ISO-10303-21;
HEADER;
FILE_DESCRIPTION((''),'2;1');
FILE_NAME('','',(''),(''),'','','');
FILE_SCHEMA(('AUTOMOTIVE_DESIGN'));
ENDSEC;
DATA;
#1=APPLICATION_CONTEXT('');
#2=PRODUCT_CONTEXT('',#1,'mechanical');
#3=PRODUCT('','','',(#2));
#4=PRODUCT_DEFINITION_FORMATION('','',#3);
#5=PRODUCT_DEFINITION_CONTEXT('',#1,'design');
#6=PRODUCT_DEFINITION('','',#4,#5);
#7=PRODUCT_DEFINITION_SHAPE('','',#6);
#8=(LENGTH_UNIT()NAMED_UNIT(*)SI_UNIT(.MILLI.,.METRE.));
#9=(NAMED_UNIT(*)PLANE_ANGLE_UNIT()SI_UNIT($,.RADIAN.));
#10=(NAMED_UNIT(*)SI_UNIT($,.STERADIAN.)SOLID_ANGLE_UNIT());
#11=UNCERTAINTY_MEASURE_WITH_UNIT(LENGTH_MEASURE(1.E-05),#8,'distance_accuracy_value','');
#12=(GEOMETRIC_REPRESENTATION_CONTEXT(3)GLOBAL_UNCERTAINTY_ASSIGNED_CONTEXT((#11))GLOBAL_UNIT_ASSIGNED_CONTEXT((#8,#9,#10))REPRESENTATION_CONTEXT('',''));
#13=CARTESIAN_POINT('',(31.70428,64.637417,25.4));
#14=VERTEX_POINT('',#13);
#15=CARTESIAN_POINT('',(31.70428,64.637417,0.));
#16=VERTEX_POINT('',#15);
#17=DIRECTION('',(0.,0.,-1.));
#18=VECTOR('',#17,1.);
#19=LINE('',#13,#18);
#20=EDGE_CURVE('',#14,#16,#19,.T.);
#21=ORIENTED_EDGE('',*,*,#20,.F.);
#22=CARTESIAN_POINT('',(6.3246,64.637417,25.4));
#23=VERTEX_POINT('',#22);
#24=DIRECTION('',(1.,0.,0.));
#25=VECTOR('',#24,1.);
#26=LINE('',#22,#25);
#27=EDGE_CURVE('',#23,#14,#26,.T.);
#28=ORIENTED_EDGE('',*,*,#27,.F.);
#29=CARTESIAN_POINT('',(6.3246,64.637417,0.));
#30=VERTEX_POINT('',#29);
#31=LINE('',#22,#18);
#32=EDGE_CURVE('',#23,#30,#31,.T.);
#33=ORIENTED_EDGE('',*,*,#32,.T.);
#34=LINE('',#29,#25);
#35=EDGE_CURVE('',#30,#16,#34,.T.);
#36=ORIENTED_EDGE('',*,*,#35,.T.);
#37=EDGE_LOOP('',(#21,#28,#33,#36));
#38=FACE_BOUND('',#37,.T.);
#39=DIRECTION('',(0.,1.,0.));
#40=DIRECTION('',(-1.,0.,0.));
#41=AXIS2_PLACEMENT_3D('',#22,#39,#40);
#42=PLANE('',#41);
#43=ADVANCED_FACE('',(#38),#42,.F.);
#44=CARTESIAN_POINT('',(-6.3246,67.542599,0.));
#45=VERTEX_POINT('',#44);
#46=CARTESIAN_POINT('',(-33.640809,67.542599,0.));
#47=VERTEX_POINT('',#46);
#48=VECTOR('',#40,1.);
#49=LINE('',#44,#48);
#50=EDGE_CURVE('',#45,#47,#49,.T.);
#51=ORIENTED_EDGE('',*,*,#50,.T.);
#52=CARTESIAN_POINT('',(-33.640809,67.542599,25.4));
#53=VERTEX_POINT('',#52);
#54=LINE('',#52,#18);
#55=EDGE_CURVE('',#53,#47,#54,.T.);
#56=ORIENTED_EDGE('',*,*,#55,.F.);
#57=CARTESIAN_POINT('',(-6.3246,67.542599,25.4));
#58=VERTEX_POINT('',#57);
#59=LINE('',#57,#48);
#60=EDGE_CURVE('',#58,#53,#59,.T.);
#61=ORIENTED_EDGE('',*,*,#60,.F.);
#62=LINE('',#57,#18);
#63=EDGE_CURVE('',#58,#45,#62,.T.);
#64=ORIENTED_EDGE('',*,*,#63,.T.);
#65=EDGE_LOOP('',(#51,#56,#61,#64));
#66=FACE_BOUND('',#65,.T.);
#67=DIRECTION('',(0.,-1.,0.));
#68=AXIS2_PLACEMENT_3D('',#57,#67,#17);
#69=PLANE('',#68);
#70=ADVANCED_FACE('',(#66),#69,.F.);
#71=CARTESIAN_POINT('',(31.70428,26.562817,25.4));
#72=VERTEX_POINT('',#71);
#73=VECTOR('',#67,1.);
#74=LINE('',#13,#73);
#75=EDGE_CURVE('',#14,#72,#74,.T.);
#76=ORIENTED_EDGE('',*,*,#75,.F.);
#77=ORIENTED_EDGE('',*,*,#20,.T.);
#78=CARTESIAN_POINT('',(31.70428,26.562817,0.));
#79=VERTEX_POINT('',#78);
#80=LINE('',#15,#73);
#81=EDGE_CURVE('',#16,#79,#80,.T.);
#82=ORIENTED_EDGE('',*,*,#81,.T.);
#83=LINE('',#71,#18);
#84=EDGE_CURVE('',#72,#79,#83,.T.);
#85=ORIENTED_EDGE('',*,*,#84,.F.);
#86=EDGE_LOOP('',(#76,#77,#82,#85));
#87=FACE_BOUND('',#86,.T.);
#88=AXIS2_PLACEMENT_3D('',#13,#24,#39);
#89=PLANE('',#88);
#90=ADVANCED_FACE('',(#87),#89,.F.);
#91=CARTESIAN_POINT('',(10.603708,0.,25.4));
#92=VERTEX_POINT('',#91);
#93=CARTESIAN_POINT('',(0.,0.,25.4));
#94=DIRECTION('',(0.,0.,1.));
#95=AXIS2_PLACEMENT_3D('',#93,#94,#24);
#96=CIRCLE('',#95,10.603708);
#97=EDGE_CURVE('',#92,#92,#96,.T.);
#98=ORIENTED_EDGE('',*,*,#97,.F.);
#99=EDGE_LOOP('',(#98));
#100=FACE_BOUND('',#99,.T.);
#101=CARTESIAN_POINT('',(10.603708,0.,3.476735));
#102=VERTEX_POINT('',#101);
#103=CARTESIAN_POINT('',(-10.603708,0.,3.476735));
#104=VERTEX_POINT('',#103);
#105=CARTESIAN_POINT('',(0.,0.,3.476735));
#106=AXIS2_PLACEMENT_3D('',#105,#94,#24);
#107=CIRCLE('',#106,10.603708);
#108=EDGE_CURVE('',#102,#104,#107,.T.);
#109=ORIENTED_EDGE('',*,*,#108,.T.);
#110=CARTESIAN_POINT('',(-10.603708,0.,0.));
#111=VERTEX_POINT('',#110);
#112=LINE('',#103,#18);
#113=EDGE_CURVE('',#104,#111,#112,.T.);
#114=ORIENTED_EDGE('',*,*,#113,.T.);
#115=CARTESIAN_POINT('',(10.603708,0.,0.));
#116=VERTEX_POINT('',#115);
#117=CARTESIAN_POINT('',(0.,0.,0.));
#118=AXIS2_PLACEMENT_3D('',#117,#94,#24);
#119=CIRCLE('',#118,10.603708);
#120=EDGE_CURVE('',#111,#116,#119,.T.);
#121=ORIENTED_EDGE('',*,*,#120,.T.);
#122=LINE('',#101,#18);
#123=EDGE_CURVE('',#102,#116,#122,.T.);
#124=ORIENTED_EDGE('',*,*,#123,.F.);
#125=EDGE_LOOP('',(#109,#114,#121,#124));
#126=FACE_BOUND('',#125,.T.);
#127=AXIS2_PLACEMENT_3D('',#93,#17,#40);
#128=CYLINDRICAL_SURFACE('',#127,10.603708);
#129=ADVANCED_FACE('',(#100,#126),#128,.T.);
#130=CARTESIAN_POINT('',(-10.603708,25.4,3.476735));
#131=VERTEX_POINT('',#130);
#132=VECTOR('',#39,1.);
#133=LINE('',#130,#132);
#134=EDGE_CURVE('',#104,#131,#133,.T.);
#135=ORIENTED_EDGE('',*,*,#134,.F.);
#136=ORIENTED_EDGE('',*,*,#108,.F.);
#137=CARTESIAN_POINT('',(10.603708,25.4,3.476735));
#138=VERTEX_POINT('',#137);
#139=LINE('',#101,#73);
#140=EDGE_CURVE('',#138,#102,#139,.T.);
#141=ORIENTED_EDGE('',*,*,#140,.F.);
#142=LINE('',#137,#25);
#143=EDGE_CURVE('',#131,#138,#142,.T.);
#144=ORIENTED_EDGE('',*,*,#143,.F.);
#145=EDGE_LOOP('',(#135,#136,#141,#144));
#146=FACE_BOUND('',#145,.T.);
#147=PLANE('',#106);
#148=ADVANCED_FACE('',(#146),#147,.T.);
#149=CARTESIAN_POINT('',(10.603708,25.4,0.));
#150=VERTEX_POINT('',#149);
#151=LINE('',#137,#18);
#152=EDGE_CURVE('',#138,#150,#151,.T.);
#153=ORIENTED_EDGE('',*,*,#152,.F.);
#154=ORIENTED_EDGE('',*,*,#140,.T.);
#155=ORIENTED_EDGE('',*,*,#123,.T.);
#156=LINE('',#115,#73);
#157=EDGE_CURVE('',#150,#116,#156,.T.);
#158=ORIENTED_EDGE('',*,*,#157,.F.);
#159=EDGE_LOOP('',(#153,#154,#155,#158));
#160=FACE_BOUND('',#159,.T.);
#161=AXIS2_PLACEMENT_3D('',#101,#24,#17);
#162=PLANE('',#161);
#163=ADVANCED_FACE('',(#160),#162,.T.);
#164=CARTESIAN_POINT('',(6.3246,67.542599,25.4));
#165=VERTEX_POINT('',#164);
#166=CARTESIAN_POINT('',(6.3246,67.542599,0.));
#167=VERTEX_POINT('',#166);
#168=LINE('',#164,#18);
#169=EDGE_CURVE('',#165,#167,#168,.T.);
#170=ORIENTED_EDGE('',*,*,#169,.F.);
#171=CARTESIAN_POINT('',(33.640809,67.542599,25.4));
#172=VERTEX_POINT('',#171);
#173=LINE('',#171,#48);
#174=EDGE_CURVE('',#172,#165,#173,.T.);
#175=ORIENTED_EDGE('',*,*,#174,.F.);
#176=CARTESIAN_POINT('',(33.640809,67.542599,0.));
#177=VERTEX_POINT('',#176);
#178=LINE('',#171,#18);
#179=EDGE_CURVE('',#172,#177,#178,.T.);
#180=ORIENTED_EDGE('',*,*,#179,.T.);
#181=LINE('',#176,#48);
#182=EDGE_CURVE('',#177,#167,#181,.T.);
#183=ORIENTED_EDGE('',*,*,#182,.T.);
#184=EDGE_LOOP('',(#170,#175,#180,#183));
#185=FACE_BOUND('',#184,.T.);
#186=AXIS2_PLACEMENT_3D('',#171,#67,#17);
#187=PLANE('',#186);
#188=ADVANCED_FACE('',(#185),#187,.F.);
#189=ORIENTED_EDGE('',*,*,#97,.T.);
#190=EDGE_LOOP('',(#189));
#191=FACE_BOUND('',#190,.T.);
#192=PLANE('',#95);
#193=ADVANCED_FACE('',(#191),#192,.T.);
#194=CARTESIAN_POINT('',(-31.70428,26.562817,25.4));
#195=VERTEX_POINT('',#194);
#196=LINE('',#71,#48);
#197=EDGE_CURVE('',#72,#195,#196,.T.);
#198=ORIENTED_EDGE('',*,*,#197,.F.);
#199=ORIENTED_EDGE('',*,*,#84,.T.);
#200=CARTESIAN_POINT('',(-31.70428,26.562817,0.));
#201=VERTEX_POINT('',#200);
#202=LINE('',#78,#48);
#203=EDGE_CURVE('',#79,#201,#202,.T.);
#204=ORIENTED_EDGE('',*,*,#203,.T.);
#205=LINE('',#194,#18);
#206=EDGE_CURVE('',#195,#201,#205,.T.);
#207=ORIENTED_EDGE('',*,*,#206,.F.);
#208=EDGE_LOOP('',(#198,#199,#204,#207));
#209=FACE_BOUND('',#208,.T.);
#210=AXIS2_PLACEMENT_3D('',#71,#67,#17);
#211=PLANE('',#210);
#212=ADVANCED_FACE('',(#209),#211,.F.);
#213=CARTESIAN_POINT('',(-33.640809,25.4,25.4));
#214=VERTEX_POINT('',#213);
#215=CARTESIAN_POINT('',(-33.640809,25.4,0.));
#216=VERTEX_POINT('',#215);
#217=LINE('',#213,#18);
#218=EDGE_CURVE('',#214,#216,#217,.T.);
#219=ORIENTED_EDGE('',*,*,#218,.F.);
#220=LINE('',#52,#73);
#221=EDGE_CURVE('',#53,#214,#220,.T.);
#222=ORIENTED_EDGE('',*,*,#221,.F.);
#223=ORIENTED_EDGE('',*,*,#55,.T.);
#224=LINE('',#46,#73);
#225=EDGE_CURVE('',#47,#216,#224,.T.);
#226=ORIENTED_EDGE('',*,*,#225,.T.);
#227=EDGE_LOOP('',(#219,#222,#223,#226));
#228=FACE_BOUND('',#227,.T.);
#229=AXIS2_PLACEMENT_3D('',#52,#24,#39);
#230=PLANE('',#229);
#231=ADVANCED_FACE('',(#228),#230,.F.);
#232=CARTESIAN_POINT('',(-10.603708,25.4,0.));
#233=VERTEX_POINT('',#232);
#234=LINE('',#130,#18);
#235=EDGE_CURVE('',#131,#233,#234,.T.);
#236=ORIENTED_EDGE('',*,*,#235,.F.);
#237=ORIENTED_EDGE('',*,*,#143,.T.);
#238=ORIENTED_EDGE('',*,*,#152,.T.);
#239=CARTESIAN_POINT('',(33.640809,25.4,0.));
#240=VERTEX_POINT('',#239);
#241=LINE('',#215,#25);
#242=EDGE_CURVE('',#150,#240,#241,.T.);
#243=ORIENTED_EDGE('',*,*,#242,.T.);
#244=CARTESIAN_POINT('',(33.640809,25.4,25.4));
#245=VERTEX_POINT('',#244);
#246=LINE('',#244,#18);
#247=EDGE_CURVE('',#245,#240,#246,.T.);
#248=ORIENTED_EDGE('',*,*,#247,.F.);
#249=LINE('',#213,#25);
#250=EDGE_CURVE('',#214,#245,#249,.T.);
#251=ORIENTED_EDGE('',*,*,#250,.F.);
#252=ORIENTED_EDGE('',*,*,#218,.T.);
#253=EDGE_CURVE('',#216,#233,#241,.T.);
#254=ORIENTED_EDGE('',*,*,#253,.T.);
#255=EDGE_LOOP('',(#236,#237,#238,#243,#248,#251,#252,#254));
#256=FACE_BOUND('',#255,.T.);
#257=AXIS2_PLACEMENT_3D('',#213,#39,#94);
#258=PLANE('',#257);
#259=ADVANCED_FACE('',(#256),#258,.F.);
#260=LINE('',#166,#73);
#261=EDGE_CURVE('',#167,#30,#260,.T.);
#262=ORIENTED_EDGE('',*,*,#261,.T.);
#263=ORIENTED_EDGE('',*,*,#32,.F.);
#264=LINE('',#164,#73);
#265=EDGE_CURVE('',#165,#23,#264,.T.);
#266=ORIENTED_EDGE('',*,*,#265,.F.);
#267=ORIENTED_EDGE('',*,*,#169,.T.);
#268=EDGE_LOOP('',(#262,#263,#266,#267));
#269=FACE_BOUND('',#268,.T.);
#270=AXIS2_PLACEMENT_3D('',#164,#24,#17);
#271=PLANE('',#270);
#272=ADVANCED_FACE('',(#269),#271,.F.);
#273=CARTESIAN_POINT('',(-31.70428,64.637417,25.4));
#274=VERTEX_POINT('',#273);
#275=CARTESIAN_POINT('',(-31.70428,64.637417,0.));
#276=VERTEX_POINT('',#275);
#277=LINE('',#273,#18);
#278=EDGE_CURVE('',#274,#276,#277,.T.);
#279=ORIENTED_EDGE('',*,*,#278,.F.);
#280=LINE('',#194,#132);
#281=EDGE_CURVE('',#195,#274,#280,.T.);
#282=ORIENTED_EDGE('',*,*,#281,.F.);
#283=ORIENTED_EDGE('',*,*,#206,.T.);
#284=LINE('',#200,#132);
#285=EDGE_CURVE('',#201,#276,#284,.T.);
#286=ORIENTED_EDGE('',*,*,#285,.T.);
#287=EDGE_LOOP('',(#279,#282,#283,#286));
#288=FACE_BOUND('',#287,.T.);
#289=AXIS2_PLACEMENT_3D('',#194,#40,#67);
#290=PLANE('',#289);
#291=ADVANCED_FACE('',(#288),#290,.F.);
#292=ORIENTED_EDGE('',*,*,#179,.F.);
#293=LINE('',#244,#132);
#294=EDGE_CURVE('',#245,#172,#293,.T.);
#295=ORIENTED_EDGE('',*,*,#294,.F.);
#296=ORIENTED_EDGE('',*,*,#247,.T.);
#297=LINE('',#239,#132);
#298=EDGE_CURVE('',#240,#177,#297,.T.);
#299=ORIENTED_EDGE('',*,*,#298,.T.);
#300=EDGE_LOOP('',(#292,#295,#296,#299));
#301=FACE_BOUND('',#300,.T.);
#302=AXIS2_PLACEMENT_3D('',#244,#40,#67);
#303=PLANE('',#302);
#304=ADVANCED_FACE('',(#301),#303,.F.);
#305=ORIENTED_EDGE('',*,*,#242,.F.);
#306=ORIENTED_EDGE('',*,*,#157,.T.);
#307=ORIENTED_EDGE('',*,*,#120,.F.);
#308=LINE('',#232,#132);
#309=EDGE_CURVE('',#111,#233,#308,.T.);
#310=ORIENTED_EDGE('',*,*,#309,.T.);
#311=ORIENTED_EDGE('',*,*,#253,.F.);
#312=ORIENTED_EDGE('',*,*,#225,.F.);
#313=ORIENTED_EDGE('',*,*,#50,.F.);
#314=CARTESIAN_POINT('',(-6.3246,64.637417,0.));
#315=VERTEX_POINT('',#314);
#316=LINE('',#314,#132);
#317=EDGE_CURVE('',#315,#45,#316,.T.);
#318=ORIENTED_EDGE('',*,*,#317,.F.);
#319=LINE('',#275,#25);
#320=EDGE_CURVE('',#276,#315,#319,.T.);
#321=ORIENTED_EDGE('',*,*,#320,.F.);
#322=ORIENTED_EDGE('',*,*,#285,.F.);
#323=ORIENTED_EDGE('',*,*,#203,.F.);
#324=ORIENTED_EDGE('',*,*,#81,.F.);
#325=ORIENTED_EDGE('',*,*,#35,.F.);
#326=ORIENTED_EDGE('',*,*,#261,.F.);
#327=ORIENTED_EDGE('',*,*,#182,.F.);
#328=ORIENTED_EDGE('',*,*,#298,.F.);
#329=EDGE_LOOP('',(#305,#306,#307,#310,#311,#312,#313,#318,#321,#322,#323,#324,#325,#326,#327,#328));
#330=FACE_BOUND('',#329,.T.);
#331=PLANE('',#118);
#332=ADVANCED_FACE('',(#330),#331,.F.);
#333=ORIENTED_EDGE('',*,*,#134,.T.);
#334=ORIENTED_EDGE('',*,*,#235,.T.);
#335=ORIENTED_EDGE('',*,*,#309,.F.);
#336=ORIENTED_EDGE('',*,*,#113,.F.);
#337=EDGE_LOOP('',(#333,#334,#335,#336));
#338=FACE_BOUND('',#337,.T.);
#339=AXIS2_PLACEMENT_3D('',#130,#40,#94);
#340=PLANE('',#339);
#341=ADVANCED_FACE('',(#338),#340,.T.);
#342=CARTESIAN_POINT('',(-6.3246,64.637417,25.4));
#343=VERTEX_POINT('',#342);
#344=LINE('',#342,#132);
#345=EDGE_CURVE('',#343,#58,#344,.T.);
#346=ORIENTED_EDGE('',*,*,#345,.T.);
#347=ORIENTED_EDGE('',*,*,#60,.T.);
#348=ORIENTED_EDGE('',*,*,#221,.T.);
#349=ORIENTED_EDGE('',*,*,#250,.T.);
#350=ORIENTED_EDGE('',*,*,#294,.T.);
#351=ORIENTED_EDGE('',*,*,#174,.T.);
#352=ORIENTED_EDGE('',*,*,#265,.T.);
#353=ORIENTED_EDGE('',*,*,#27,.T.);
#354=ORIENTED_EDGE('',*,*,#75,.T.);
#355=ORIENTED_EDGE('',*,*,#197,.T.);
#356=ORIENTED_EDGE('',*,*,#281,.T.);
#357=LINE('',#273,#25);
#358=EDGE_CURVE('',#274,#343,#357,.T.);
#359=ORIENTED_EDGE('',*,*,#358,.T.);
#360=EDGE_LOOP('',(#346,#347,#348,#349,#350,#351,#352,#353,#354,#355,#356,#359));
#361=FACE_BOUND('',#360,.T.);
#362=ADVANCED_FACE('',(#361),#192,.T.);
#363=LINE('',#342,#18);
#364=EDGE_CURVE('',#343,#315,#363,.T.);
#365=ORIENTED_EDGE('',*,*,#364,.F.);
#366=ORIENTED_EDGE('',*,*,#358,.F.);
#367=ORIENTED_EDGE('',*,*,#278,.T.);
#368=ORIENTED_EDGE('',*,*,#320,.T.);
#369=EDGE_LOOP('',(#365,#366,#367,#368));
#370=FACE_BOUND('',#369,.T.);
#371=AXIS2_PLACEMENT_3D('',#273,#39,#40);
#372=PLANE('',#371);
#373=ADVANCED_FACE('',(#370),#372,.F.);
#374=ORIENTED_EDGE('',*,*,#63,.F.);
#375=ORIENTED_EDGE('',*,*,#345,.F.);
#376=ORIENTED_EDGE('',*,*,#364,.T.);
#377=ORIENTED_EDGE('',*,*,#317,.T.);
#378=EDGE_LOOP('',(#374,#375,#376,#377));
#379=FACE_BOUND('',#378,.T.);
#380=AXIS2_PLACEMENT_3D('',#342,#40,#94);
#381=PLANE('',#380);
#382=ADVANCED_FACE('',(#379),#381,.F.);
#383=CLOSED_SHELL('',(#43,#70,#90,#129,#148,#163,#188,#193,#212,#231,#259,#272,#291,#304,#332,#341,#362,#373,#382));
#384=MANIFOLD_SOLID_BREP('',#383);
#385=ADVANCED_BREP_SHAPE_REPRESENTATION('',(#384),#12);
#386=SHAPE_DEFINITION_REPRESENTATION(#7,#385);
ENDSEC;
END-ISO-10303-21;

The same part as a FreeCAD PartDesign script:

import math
import FreeCAD as App
import Part
import Sketcher

V = App.Vector
Q = App.Units.Quantity

doc = App.newDocument("Part")
params = doc.addObject("Spreadsheet::Sheet", "Params")
for row, (alias, value) in enumerate([
    ("pad1_length", "1 in"),
    ("sketch2_height", "1.499 in"),
    ("pad2_length", "1 in"),
    ("sketch3_height", "1 in"),
    ("pad3_length", "3.476735 mm"),
], start=1):
    params.set(f"A{row}", alias)
    params.set(f"B{row}", "=" + value)
    params.setAlias(f"B{row}", alias)

body = doc.addObject("PartDesign::Body", "Body")

sketch1 = doc.addObject("Sketcher::SketchObject", "Sketch")
body.addObject(sketch1)
sketch1.AttachmentSupport = (doc.XY_Plane, [""])
sketch1.MapMode = "FlatFace"
sketch1.addGeometry(Part.Circle(V(0, 0, 0), V(0, 0, 1), 11), False)
sketch1.addConstraint(Sketcher.Constraint("Coincident", 0, 3, -1, 1))
sketch1.addConstraint(Sketcher.Constraint("Diameter", 0, 21.207415))
pad1 = doc.addObject("PartDesign::Pad", "Pad")
body.addObject(pad1)
pad1.Profile = sketch1
pad1.setExpression("Length", "Params.pad1_length")
body2 = doc.addObject("PartDesign::Body", "Body001")

sketch2 = doc.addObject("Sketcher::SketchObject", "Sketch001")
body2.addObject(sketch2)
sketch2.AttachmentSupport = (doc.getObject("XY_Plane001"), [""])
sketch2.MapMode = "FlatFace"
sketch2.addGeometry(Part.LineSegment(V(-33.6, 67.5, 0), V(-33.6, 25.4, 0)), False)
sketch2.addGeometry(Part.LineSegment(V(-33.6, 25.4, 0), V(33.6, 25.4, 0)), False)
sketch2.addGeometry(Part.LineSegment(V(33.6, 25.4, 0), V(33.6, 67.5, 0)), False)
sketch2.addGeometry(Part.LineSegment(V(33.6, 67.5, 0), V(6.3, 67.5, 0)), False)
sketch2.addGeometry(Part.LineSegment(V(6.3, 67.5, 0), V(6.3, 64.6, 0)), False)
sketch2.addGeometry(Part.LineSegment(V(6.3, 64.6, 0), V(31.7, 64.6, 0)), False)
sketch2.addGeometry(Part.LineSegment(V(31.7, 64.6, 0), V(31.7, 26.6, 0)), False)
sketch2.addGeometry(Part.LineSegment(V(31.7, 26.6, 0), V(-31.7, 26.6, 0)), False)
sketch2.addGeometry(Part.LineSegment(V(-31.7, 26.6, 0), V(-31.7, 64.6, 0)), False)
sketch2.addGeometry(Part.LineSegment(V(-31.7, 64.6, 0), V(-6.3, 64.6, 0)), False)
sketch2.addGeometry(Part.LineSegment(V(-6.3, 64.6, 0), V(-6.3, 67.5, 0)), False)
sketch2.addGeometry(Part.LineSegment(V(-6.3, 67.5, 0), V(-33.6, 67.5, 0)), False)
sketch2.addConstraint(Sketcher.Constraint("Coincident", 0, 2, 1, 1))
sketch2.addConstraint(Sketcher.Constraint("Coincident", 1, 2, 2, 1))
sketch2.addConstraint(Sketcher.Constraint("Coincident", 2, 2, 3, 1))
sketch2.addConstraint(Sketcher.Constraint("Coincident", 3, 2, 4, 1))
sketch2.addConstraint(Sketcher.Constraint("Coincident", 4, 2, 5, 1))
sketch2.addConstraint(Sketcher.Constraint("Coincident", 5, 2, 6, 1))
sketch2.addConstraint(Sketcher.Constraint("Coincident", 6, 2, 7, 1))
sketch2.addConstraint(Sketcher.Constraint("Coincident", 7, 2, 8, 1))
sketch2.addConstraint(Sketcher.Constraint("Coincident", 8, 2, 9, 1))
sketch2.addConstraint(Sketcher.Constraint("Coincident", 9, 2, 10, 1))
sketch2.addConstraint(Sketcher.Constraint("Coincident", 10, 2, 11, 1))
sketch2.addConstraint(Sketcher.Constraint("Coincident", 11, 2, 0, 1))
sketch2.addConstraint(Sketcher.Constraint("Vertical", 0))
sketch2.addConstraint(Sketcher.Constraint("Horizontal", 1))
sketch2.addConstraint(Sketcher.Constraint("Vertical", 2))
sketch2.addConstraint(Sketcher.Constraint("Horizontal", 3))
sketch2.addConstraint(Sketcher.Constraint("Vertical", 4))
sketch2.addConstraint(Sketcher.Constraint("Horizontal", 5))
sketch2.addConstraint(Sketcher.Constraint("Vertical", 6))
sketch2.addConstraint(Sketcher.Constraint("Horizontal", 7))
sketch2.addConstraint(Sketcher.Constraint("Vertical", 8))
sketch2.addConstraint(Sketcher.Constraint("Horizontal", 9))
sketch2.addConstraint(Sketcher.Constraint("Vertical", 10))
sketch2.addConstraint(Sketcher.Constraint("Horizontal", 11))
sketch2.addConstraint(Sketcher.Constraint("Symmetric", 5, 2, 8, 2, -2))
sketch2.addConstraint(Sketcher.Constraint("Symmetric", 3, 2, 10, 2, -2))
sketch2.addConstraint(Sketcher.Constraint("Equal", 3, 11))
sketch2.addConstraint(Sketcher.Constraint("DistanceY", -1, 1, 0, 2, Q("1 in")))
sketch2.addConstraint(Sketcher.Constraint("DistanceY", 6, 2, 6, 1, Q("1.499 in")))
sketch2.addConstraint(Sketcher.Constraint("DistanceX", 5, 1, 5, 2, Q("0.9992 in")))
sketch2.addConstraint(Sketcher.Constraint("DistanceX", 7, 2, 7, 1, Q("2.4964 in")))
sketch2.addConstraint(Sketcher.Constraint("DistanceY", 0, 2, 0, 1, 42.142599))
sketch2.addConstraint(Sketcher.Constraint("DistanceX", 1, 1, 1, 2, 67.281618))
sketch2.addConstraint(Sketcher.Constraint("DistanceY", 4, 2, 4, 1, 2.905181))
sketch2.setExpression("Constraints[28]", "Params.sketch2_height")
pad2 = doc.addObject("PartDesign::Pad", "Pad001")
body2.addObject(pad2)
pad2.Profile = sketch2
pad2.setExpression("Length", "Params.pad2_length")
body.AllowCompound = True
doc.recompute()

boolean = doc.addObject("PartDesign::Boolean", "Boolean")
body.addObject(boolean)
boolean.Type = "Fuse"
boolean.addObjects([body2])

sketch3 = doc.addObject("Sketcher::SketchObject", "Sketch002")
body.addObject(sketch3)
sketch3.AttachmentSupport = (doc.XY_Plane, [""])
sketch3.MapMode = "FlatFace"
sketch3.addGeometry(Part.LineSegment(V(11, 25, 0), V(11, 0, 0)), False)
sketch3.addGeometry(Part.ArcOfCircle(Part.Circle(V(0, 0, 0), V(0, 0, 1), 11), math.radians(180), math.radians(360)), False)
sketch3.addGeometry(Part.LineSegment(V(-11, 0, 0), V(-11, 25, 0)), False)
sketch3.addGeometry(Part.LineSegment(V(-11, 25, 0), V(11, 25, 0)), False)
sketch3.addConstraint(Sketcher.Constraint("Tangent", 0, 2, 1, 2))
sketch3.addConstraint(Sketcher.Constraint("Tangent", 1, 1, 2, 1))
sketch3.addConstraint(Sketcher.Constraint("Coincident", 2, 2, 3, 1))
sketch3.addConstraint(Sketcher.Constraint("Coincident", 3, 2, 0, 1))
sketch3.addConstraint(Sketcher.Constraint("Vertical", 0))
sketch3.addConstraint(Sketcher.Constraint("Vertical", 2))
sketch3.addConstraint(Sketcher.Constraint("Horizontal", 3))
sketch3.addConstraint(Sketcher.Constraint("Coincident", 1, 3, -1, 1))
sketch3.addConstraint(Sketcher.Constraint("DistanceY", 0, 2, 0, 1, Q("1 in")))
sketch3.addConstraint(Sketcher.Constraint("Radius", 1, 10.603708))
sketch3.setExpression("Constraints[8]", "Params.sketch3_height")
pad3 = doc.addObject("PartDesign::Pad", "Pad002")
body.addObject(pad3)
pad3.Profile = sketch3
pad3.setExpression("Length", "Params.pad3_length")

doc.recompute()
